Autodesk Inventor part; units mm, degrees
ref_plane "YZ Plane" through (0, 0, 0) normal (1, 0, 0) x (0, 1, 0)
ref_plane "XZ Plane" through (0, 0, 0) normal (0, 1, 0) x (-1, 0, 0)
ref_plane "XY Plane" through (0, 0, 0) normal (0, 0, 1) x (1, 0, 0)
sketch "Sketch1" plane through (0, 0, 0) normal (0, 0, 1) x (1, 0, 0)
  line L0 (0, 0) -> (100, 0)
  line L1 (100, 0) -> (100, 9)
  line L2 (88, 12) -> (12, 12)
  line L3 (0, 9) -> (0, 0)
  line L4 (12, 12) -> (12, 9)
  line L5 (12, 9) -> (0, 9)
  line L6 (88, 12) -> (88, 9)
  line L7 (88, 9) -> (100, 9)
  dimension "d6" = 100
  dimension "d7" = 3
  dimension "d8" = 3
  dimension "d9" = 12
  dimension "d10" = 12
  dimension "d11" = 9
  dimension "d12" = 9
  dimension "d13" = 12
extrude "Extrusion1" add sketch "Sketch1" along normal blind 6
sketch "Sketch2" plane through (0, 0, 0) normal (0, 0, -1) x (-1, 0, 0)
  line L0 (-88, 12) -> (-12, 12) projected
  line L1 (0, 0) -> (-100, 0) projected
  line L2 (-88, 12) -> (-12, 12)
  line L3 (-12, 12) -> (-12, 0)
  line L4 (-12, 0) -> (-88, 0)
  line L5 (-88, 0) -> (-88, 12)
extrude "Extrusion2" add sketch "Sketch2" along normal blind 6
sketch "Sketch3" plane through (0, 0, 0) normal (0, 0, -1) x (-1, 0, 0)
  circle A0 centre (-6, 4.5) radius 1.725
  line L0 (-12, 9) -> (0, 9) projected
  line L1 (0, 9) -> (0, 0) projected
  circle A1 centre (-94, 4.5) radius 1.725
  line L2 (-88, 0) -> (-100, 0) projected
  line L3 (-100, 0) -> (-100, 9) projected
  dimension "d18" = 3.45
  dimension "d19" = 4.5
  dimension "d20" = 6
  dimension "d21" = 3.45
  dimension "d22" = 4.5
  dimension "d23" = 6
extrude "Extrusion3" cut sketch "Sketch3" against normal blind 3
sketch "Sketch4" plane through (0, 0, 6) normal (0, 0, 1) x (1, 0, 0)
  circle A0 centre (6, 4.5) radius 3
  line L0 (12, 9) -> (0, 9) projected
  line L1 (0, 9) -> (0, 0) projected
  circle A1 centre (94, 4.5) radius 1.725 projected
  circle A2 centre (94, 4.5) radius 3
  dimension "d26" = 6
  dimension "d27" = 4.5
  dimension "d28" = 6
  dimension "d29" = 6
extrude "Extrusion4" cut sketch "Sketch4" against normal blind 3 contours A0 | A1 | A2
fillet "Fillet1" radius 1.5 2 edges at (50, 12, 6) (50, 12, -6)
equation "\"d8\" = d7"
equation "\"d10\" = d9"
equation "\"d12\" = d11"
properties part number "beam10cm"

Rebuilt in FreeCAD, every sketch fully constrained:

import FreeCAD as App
import Part
import Sketcher


def edges_at(feature, points):
    """Names of the edges that pass closest to the given points."""
    edges = feature.Shape.Edges
    near = lambda p: min(range(len(edges)), key=lambda i: edges[i].distToShape(Part.Vertex(*p))[0])
    return sorted({f"Edge{near(p) + 1}" for p in points})

doc = App.newDocument("Part")
params = doc.addObject("Spreadsheet::Sheet", "Params")
for row, (alias, value) in enumerate([
    ("sketch1_width", "100 mm"),
    ("sketch1_width2", "12 mm"),
    ("sketch1_height", "9 mm"),
    ("sketch1_height2", "3 mm"),
    ("pad1_length", "6 mm"),
    ("sketch2_width", "76 mm"),
    ("sketch2_height", "12 mm"),
    ("pad2_length", "6 mm"),
    ("sketch3_diameter", "3.45 mm"),
    ("pocket1_length", "3 mm"),
    ("sketch4_diameter", "6 mm"),
    ("pocket2_length", "3 mm"),
    ("fillet_radius", "1.5 mm"),
], start=1):
    params.set(f"A{row}", alias)
    params.set(f"B{row}", "=" + value)
    params.setAlias(f"B{row}", alias)

body = doc.addObject("PartDesign::Body", "Body")

sketch1 = doc.addObject("Sketcher::SketchObject", "Sketch")
body.addObject(sketch1)
sketch1.AttachmentSupport = (doc.XY_Plane, [""])
sketch1.MapMode = "FlatFace"
sketch1.addGeometry([
    Part.LineSegment(App.Vector(0, 9, 0), App.Vector(0, 0, 0)),
    Part.LineSegment(App.Vector(0, 0, 0), App.Vector(100, 0, 0)),
    Part.LineSegment(App.Vector(100, 0, 0), App.Vector(100, 9, 0)),
    Part.LineSegment(App.Vector(100, 9, 0), App.Vector(88, 9, 0)),
    Part.LineSegment(App.Vector(88, 9, 0), App.Vector(88, 12, 0)),
    Part.LineSegment(App.Vector(88, 12, 0), App.Vector(12, 12, 0)),
    Part.LineSegment(App.Vector(12, 12, 0), App.Vector(12, 9, 0)),
    Part.LineSegment(App.Vector(12, 9, 0), App.Vector(0, 9, 0)),
], False)
sketch1.addConstraint([
    Sketcher.Constraint("Coincident", 0, 2, 1, 1),
    Sketcher.Constraint("Coincident", 1, 2, 2, 1),
    Sketcher.Constraint("Coincident", 2, 2, 3, 1),
    Sketcher.Constraint("Coincident", 3, 2, 4, 1),
    Sketcher.Constraint("Coincident", 4, 2, 5, 1),
    Sketcher.Constraint("Coincident", 5, 2, 6, 1),
    Sketcher.Constraint("Coincident", 6, 2, 7, 1),
    Sketcher.Constraint("Coincident", 7, 2, 0, 1),
    Sketcher.Constraint("Vertical", 0),
    Sketcher.Constraint("Horizontal", 1),
    Sketcher.Constraint("Vertical", 2),
    Sketcher.Constraint("Horizontal", 3),
    Sketcher.Constraint("Vertical", 4),
    Sketcher.Constraint("Horizontal", 5),
    Sketcher.Constraint("Vertical", 6),
    Sketcher.Constraint("Horizontal", 7),
    Sketcher.Constraint("Coincident", 0, 2, -1, 1),
    Sketcher.Constraint("Horizontal", 3, 2, 6, 2),
    Sketcher.Constraint("Equal", 3, 7),
    Sketcher.Constraint("DistanceX", 1, 1, 1, 2, 100.0),
    Sketcher.Constraint("DistanceX", 3, 2, 3, 1, 12.0),
    Sketcher.Constraint("DistanceY", 0, 2, 0, 1, 9.0),
    Sketcher.Constraint("DistanceY", 4, 1, 4, 2, 3.0),
])
sketch1.setExpression("Constraints[19]", "Params.sketch1_width")
sketch1.setExpression("Constraints[20]", "Params.sketch1_width2")
sketch1.setExpression("Constraints[21]", "Params.sketch1_height")
sketch1.setExpression("Constraints[22]", "Params.sketch1_height2")
pad1 = doc.addObject("PartDesign::Pad", "Pad")
body.addObject(pad1)
pad1.Profile = sketch1
pad1.setExpression("Length", "Params.pad1_length")

sketch2 = doc.addObject("Sketcher::SketchObject", "Sketch001")
body.addObject(sketch2)
sketch2.AttachmentSupport = (doc.XY_Plane, [""])
sketch2.MapMode = "FlatFace"
sketch2.addGeometry([
    Part.LineSegment(App.Vector(12, 12, 0), App.Vector(88, 12, 0)),
    Part.LineSegment(App.Vector(88, 12, 0), App.Vector(88, 0, 0)),
    Part.LineSegment(App.Vector(88, 0, 0), App.Vector(12, 0, 0)),
    Part.LineSegment(App.Vector(12, 0, 0), App.Vector(12, 12, 0)),
], False)
sketch2.addConstraint([
    Sketcher.Constraint("Coincident", 0, 2, 1, 1),
    Sketcher.Constraint("Coincident", 1, 2, 2, 1),
    Sketcher.Constraint("Coincident", 2, 2, 3, 1),
    Sketcher.Constraint("Coincident", 3, 2, 0, 1),
    Sketcher.Constraint("Horizontal", 0),
    Sketcher.Constraint("Vertical", 1),
    Sketcher.Constraint("Horizontal", 2),
    Sketcher.Constraint("Vertical", 3),
    Sketcher.Constraint("PointOnObject", 1, 2, -1),
    Sketcher.Constraint("DistanceX", 0, 1, 0, 2, 76.0),
    Sketcher.Constraint("DistanceY", 1, 2, 1, 1, 12.0),
    Sketcher.Constraint("DistanceX", -1, 1, 0, 2, 88.0),
])
sketch2.setExpression("Constraints[9]", "Params.sketch2_width")
sketch2.setExpression("Constraints[10]", "Params.sketch2_height")
pad2 = doc.addObject("PartDesign::Pad", "Pad001")
body.addObject(pad2)
pad2.Profile = sketch2
pad2.setExpression("Length", "Params.pad2_length")
pad2.Reversed = True

sketch3 = doc.addObject("Sketcher::SketchObject", "Sketch002")
body.addObject(sketch3)
sketch3.AttachmentSupport = (doc.XY_Plane, [""])
sketch3.MapMode = "FlatFace"
sketch3.addGeometry([
    Part.Circle(App.Vector(6, 4.5, 0), App.Vector(0, 0, 1), 1.7),
    Part.Circle(App.Vector(94, 4.5, 0), App.Vector(0, 0, 1), 1.7),
], False)
sketch3.addConstraint([
    Sketcher.Constraint("Equal", 0, 1),
    Sketcher.Constraint("Horizontal", 0, 3, 1, 3),
    Sketcher.Constraint("Diameter", 0, 3.45),
    Sketcher.Constraint("DistanceX", -1, 1, 0, 3, 6.0),
    Sketcher.Constraint("DistanceY", -1, 1, 0, 3, 4.5),
    Sketcher.Constraint("DistanceX", -1, 1, 1, 3, 94.0),
])
sketch3.setExpression("Constraints[2]", "Params.sketch3_diameter")
pocket1 = doc.addObject("PartDesign::Pocket", "Pocket")
body.addObject(pocket1)
pocket1.Profile = sketch3
pocket1.setExpression("Length", "Params.pocket1_length")
pocket1.Reversed = True

sketch4 = doc.addObject("Sketcher::SketchObject", "Sketch003")
body.addObject(sketch4)
sketch4.AttachmentSupport = (doc.XY_Plane, [""])
sketch4.MapMode = "FlatFace"
sketch4.AttachmentOffset = App.Placement(App.Vector(0, 0, 6), App.Rotation())
sketch4.addGeometry([
    Part.Circle(App.Vector(6, 4.5, 0), App.Vector(0, 0, 1), 3),
    Part.Circle(App.Vector(94, 4.5, 0), App.Vector(0, 0, 1), 3),
], False)
sketch4.addConstraint([
    Sketcher.Constraint("Equal", 0, 1),
    Sketcher.Constraint("Horizontal", 0, 3, 1, 3),
    Sketcher.Constraint("Diameter", 0, 6.0),
    Sketcher.Constraint("DistanceX", -1, 1, 0, 3, 6.0),
    Sketcher.Constraint("DistanceY", -1, 1, 0, 3, 4.5),
    Sketcher.Constraint("DistanceX", -1, 1, 1, 3, 94.0),
])
sketch4.setExpression("Constraints[2]", "Params.sketch4_diameter")
pocket2 = doc.addObject("PartDesign::Pocket", "Pocket001")
body.addObject(pocket2)
pocket2.Profile = sketch4
pocket2.setExpression("Length", "Params.pocket2_length")
doc.recompute()

fillet = doc.addObject("PartDesign::Fillet", "Fillet")
body.addObject(fillet)
fillet.Base = (pocket2, edges_at(pocket2, [(50, 12, 6), (50, 12, -6)]))
fillet.setExpression("Radius", "Params.fillet_radius")

doc.recompute()
